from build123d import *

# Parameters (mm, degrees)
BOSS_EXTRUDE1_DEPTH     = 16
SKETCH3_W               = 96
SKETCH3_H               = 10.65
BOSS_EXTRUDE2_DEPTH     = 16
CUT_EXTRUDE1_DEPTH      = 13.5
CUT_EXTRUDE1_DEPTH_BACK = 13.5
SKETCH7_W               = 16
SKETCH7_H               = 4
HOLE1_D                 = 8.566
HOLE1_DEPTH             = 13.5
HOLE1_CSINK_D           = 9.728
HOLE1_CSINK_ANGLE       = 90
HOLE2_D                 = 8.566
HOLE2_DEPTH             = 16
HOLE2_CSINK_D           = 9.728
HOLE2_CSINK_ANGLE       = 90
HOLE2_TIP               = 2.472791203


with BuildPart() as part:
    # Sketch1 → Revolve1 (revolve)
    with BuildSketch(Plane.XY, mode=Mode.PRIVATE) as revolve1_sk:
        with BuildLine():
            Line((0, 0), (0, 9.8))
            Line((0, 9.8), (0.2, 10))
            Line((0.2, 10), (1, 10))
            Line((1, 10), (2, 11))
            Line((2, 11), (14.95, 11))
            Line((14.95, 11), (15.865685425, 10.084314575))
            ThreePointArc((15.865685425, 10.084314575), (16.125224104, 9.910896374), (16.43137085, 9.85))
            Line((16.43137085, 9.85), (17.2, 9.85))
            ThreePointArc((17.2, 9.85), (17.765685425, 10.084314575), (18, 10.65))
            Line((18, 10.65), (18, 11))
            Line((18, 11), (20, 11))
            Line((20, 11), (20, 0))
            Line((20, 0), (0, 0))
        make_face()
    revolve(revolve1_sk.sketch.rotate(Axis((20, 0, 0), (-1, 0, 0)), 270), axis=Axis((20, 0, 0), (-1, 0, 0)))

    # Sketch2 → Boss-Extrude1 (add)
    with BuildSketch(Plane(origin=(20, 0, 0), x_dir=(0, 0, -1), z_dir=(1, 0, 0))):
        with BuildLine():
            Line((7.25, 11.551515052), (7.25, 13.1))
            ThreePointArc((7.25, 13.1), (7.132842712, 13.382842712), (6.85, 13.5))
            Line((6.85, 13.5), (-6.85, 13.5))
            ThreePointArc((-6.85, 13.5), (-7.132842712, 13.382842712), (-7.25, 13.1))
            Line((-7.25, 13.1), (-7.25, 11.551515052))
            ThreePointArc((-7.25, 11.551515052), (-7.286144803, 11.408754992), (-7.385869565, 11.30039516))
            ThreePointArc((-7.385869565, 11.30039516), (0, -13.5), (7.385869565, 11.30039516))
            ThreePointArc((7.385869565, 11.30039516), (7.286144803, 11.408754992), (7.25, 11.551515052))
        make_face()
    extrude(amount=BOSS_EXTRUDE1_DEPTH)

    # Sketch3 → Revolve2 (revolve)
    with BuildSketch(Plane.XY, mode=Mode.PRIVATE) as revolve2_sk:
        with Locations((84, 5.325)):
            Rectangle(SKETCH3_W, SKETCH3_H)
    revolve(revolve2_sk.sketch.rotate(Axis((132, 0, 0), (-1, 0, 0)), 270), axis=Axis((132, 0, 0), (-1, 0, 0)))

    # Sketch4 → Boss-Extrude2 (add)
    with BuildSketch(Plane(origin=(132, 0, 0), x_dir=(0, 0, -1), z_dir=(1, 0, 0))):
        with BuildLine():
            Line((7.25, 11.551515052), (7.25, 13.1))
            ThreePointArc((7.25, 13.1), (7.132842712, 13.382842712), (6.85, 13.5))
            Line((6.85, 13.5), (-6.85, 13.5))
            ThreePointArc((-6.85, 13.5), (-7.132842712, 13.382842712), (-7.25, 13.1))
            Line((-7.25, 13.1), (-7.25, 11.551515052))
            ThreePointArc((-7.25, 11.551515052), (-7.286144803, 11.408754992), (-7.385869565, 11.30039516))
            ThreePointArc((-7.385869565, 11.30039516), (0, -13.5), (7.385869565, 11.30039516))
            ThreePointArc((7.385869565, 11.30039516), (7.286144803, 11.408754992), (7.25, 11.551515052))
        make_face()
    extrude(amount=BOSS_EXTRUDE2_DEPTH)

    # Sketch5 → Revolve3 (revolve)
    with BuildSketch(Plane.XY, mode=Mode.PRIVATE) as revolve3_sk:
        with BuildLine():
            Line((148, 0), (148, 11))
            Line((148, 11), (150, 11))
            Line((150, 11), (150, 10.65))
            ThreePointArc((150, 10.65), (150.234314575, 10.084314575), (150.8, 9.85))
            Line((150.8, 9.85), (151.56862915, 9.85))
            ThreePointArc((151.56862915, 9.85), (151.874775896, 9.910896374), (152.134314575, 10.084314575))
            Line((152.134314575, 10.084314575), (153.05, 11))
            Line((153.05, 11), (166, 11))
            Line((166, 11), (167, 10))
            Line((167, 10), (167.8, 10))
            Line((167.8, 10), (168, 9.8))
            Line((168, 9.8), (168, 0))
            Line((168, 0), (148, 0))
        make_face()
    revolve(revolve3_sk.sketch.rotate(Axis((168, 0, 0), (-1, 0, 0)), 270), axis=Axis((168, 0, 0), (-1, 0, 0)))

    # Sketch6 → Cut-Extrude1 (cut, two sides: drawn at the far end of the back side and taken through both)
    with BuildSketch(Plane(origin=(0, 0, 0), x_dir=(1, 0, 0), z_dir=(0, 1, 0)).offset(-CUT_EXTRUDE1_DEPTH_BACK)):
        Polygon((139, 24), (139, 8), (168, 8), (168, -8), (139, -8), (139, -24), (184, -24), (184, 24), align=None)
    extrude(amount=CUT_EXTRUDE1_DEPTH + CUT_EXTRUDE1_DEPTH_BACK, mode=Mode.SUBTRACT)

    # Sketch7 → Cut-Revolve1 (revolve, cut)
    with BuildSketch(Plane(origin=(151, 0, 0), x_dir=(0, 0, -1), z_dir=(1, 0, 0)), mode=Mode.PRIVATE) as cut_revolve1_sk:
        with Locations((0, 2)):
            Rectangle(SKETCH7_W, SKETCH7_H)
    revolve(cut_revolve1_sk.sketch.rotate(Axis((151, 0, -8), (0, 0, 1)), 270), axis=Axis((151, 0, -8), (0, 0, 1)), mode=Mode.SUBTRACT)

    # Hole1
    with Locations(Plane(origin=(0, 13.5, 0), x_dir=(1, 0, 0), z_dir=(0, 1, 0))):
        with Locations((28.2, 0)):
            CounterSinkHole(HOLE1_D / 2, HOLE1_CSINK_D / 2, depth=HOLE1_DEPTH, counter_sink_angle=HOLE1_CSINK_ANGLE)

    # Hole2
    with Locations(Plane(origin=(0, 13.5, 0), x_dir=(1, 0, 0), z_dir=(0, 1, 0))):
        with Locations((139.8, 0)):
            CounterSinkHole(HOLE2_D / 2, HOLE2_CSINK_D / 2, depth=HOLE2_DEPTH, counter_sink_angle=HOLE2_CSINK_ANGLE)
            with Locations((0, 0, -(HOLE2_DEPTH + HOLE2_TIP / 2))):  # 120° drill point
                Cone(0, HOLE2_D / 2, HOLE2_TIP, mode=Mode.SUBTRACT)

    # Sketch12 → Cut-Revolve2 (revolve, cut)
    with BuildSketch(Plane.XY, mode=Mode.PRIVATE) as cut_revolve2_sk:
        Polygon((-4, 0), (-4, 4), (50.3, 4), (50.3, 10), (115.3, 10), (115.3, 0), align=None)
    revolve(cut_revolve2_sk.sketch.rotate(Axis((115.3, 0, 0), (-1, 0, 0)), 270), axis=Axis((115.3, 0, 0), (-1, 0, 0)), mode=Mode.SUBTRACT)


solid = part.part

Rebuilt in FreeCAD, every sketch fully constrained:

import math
import FreeCAD as App
import Part
import Sketcher
Q = App.Units.Quantity

doc = App.newDocument("Part")
body = doc.addObject("PartDesign::Body", "Body")

sketch1 = body.newObject("Sketcher::SketchObject", "Sketch")
sketch1.AttachmentSupport = (doc.getObject("XY_Plane"), [""])
sketch1.MapMode = "FlatFace"
sketch1.addGeometry([
    Part.LineSegment(App.Vector(0, 9.8, 0), App.Vector(0, 0, 0)),
    Part.LineSegment(App.Vector(0, 0, 0), App.Vector(20, 0, 0)),
    Part.LineSegment(App.Vector(20, 0, 0), App.Vector(20, 11, 0)),
    Part.LineSegment(App.Vector(20, 11, 0), App.Vector(18, 11, 0)),
    Part.LineSegment(App.Vector(18, 11, 0), App.Vector(18, 10.65, 0)),
    Part.ArcOfCircle(Part.Circle(App.Vector(17.2, 10.65, 0), App.Vector(0, 0, 1), 0.8), math.radians(-90), math.radians(0)),
    Part.LineSegment(App.Vector(17.2, 9.85, 0), App.Vector(16.43, 9.85, 0)),
    Part.ArcOfCircle(Part.Circle(App.Vector(16.43, 10.65, 0), App.Vector(0, 0, 1), 0.8), math.radians(-135), math.radians(-90)),
    Part.LineSegment(App.Vector(15.87, 10.08, 0), App.Vector(14.95, 11, 0)),
    Part.LineSegment(App.Vector(14.95, 11, 0), App.Vector(2, 11, 0)),
    Part.LineSegment(App.Vector(2, 11, 0), App.Vector(1, 10, 0)),
    Part.LineSegment(App.Vector(1, 10, 0), App.Vector(0.2, 10, 0)),
    Part.LineSegment(App.Vector(0.2, 10, 0), App.Vector(0, 9.8, 0)),
], False)
sketch1.addConstraint([
    Sketcher.Constraint("Coincident", 0, 2, 1, 1),
    Sketcher.Constraint("Coincident", 1, 2, 2, 1),
    Sketcher.Constraint("Coincident", 2, 2, 3, 1),
    Sketcher.Constraint("Coincident", 3, 2, 4, 1),
    Sketcher.Constraint("Tangent", 4, 2, 5, 2),
    Sketcher.Constraint("Tangent", 5, 1, 6, 1),
    Sketcher.Constraint("Tangent", 6, 2, 7, 2),
    Sketcher.Constraint("Tangent", 7, 1, 8, 1),
    Sketcher.Constraint("Coincident", 8, 2, 9, 1),
    Sketcher.Constraint("Coincident", 9, 2, 10, 1),
    Sketcher.Constraint("Coincident", 10, 2, 11, 1),
    Sketcher.Constraint("Coincident", 11, 2, 12, 1),
    Sketcher.Constraint("Coincident", 12, 2, 0, 1),
    Sketcher.Constraint("Vertical", 0),
    Sketcher.Constraint("Horizontal", 1),
    Sketcher.Constraint("Vertical", 2),
    Sketcher.Constraint("Horizontal", 3),
    Sketcher.Constraint("Vertical", 4),
    Sketcher.Constraint("Horizontal", 6),
    Sketcher.Constraint("Horizontal", 9),
    Sketcher.Constraint("Horizontal", 11),
    Sketcher.Constraint("Coincident", 0, 2, -1, 1),
    Sketcher.Constraint("Equal", 5, 7),
    Sketcher.Constraint("Perpendicular", 8, 10),
    Sketcher.Constraint("Parallel", 10, 12),
    Sketcher.Constraint("Horizontal", 3, 2, 8, 2),
    Sketcher.Constraint("Radius", 5, Q("0.8 mm")),
    Sketcher.Constraint("DistanceX", 1, 1, 1, 2, Q("20 mm")),
    Sketcher.Constraint("DistanceX", 3, 2, 3, 1, Q("2 mm")),
    Sketcher.Constraint("DistanceY", 2, 1, 2, 2, Q("11 mm")),
    Sketcher.Constraint("Angle", 8, Q("135 deg")),
    Sketcher.Constraint("DistanceX", 11, 2, 11, 1, Q("0.8 mm")),
    Sketcher.Constraint("DistanceY", 0, 2, 0, 1, Q("9.8 mm")),
    Sketcher.Constraint("DistanceX", -1, 1, 10, 2, Q("1 mm")),
    Sketcher.Constraint("DistanceX", 9, 2, 9, 1, Q("12.95 mm")),
    Sketcher.Constraint("DistanceY", 4, 2, 4, 1, Q("0.35 mm")),
])
revolution = body.newObject("PartDesign::Revolution", "Revolution")
revolution.Profile = sketch1
revolution.ReferenceAxis = (sketch1, ["H_Axis"])
revolution.Angle = 360

sketch2 = body.newObject("Sketcher::SketchObject", "Sketch001")
sketch2.AttachmentSupport = (doc.getObject("YZ_Plane"), [""])
sketch2.MapMode = "FlatFace"
sketch2.AttachmentOffset = App.Placement(App.Vector(0, 0, 20), App.Rotation())
sketch2.addGeometry([
    Part.LineSegment(App.Vector(11.55, -7.25, 0), App.Vector(13.1, -7.25, 0)),
    Part.ArcOfCircle(Part.Circle(App.Vector(13.1, -6.85, 0), App.Vector(0, 0, 1), 0.4), math.radians(-90), math.radians(0)),
    Part.LineSegment(App.Vector(13.5, -6.85, 0), App.Vector(13.5, 6.85, 0)),
    Part.ArcOfCircle(Part.Circle(App.Vector(13.1, 6.85, 0), App.Vector(0, 0, 1), 0.4), math.radians(0), math.radians(90)),
    Part.LineSegment(App.Vector(13.1, 7.25, 0), App.Vector(11.55, 7.25, 0)),
    Part.ArcOfCircle(Part.Circle(App.Vector(11.55, 7.55, 0), App.Vector(0, 0, 1), 0.3), math.radians(-147), math.radians(-90)),
    Part.ArcOfCircle(Part.Circle(App.Vector(0, 0, 0), App.Vector(0, 0, 1), 13.5), math.radians(33), math.radians(327)),
    Part.ArcOfCircle(Part.Circle(App.Vector(11.55, -7.55, 0), App.Vector(0, 0, 1), 0.3), math.radians(90), math.radians(147)),
], False)
sketch2.addConstraint([
    Sketcher.Constraint("Tangent", 0, 2, 1, 1),
    Sketcher.Constraint("Tangent", 1, 2, 2, 1),
    Sketcher.Constraint("Tangent", 2, 2, 3, 1),
    Sketcher.Constraint("Tangent", 3, 2, 4, 1),
    Sketcher.Constraint("Tangent", 4, 2, 5, 2),
    Sketcher.Constraint("Tangent", 5, 1, 6, 1),
    Sketcher.Constraint("Tangent", 6, 2, 7, 2),
    Sketcher.Constraint("Tangent", 7, 1, 0, 1),
    Sketcher.Constraint("Horizontal", 0),
    Sketcher.Constraint("Vertical", 2),
    Sketcher.Constraint("Horizontal", 4),
    Sketcher.Constraint("Coincident", 6, 3, -1, 1),
    Sketcher.Constraint("Equal", 1, 3),
    Sketcher.Constraint("Equal", 5, 7),
    Sketcher.Constraint("Vertical", 5, 3, 7, 3),
    Sketcher.Constraint("Radius", 1, Q("0.4 mm")),
    Sketcher.Constraint("Radius", 5, Q("0.3 mm")),
    Sketcher.Constraint("Radius", 6, Q("13.5 mm")),
    Sketcher.Constraint("DistanceY", 2, 1, 2, 2, Q("13.7 mm")),
    Sketcher.Constraint("DistanceX", -1, 1, 1, 3, Q("13.1 mm")),
])
pad1 = body.newObject("PartDesign::Pad", "Pad")
pad1.Profile = sketch2
pad1.Length = 16

sketch3 = body.newObject("Sketcher::SketchObject", "Sketch002")
sketch3.AttachmentSupport = (doc.getObject("XY_Plane"), [""])
sketch3.MapMode = "FlatFace"
sketch3.addGeometry([
    Part.LineSegment(App.Vector(36, 11, 0), App.Vector(36, 0, 0)),
    Part.LineSegment(App.Vector(36, 0, 0), App.Vector(132, 0, 0)),
    Part.LineSegment(App.Vector(132, 0, 0), App.Vector(132, 11, 0)),
    Part.LineSegment(App.Vector(132, 11, 0), App.Vector(36, 11, 0)),
], False)
sketch3.addConstraint([
    Sketcher.Constraint("Coincident", 0, 2, 1, 1),
    Sketcher.Constraint("Coincident", 1, 2, 2, 1),
    Sketcher.Constraint("Coincident", 2, 2, 3, 1),
    Sketcher.Constraint("Coincident", 3, 2, 0, 1),
    Sketcher.Constraint("Vertical", 0),
    Sketcher.Constraint("Horizontal", 1),
    Sketcher.Constraint("Vertical", 2),
    Sketcher.Constraint("Horizontal", 3),
    Sketcher.Constraint("PointOnObject", 0, 2, -1),
    Sketcher.Constraint("DistanceX", 1, 1, 1, 2, Q("96 mm")),
    Sketcher.Constraint("DistanceX", -1, 1, 0, 2, Q("36 mm")),
    Sketcher.Constraint("DistanceY", 0, 2, 0, 1, Q("10.65 mm")),
])
revolution2 = body.newObject("PartDesign::Revolution", "Revolution001")
revolution2.Profile = sketch3
revolution2.ReferenceAxis = (sketch3, ["H_Axis"])
revolution2.Angle = 360

sketch4 = body.newObject("Sketcher::SketchObject", "Sketch003")
sketch4.AttachmentSupport = (doc.getObject("YZ_Plane"), [""])
sketch4.MapMode = "FlatFace"
sketch4.AttachmentOffset = App.Placement(App.Vector(0, 0, 132), App.Rotation())
sketch4.addGeometry([
    Part.LineSegment(App.Vector(11.55, -7.25, 0), App.Vector(13.1, -7.25, 0)),
    Part.ArcOfCircle(Part.Circle(App.Vector(13.1, -6.85, 0), App.Vector(0, 0, 1), 0.4), math.radians(-90), math.radians(0)),
    Part.LineSegment(App.Vector(13.5, -6.85, 0), App.Vector(13.5, 6.85, 0)),
    Part.ArcOfCircle(Part.Circle(App.Vector(13.1, 6.85, 0), App.Vector(0, 0, 1), 0.4), math.radians(0), math.radians(90)),
    Part.LineSegment(App.Vector(13.1, 7.25, 0), App.Vector(11.55, 7.25, 0)),
    Part.ArcOfCircle(Part.Circle(App.Vector(11.55, 7.55, 0), App.Vector(0, 0, 1), 0.3), math.radians(-147), math.radians(-90)),
    Part.ArcOfCircle(Part.Circle(App.Vector(0, 0, 0), App.Vector(0, 0, 1), 13.5), math.radians(33), math.radians(327)),
    Part.ArcOfCircle(Part.Circle(App.Vector(11.55, -7.55, 0), App.Vector(0, 0, 1), 0.3), math.radians(90), math.radians(147)),
], False)
sketch4.addConstraint([
    Sketcher.Constraint("Tangent", 0, 2, 1, 1),
    Sketcher.Constraint("Tangent", 1, 2, 2, 1),
    Sketcher.Constraint("Tangent", 2, 2, 3, 1),
    Sketcher.Constraint("Tangent", 3, 2, 4, 1),
    Sketcher.Constraint("Tangent", 4, 2, 5, 2),
    Sketcher.Constraint("Tangent", 5, 1, 6, 1),
    Sketcher.Constraint("Tangent", 6, 2, 7, 2),
    Sketcher.Constraint("Tangent", 7, 1, 0, 1),
    Sketcher.Constraint("Horizontal", 0),
    Sketcher.Constraint("Vertical", 2),
    Sketcher.Constraint("Horizontal", 4),
    Sketcher.Constraint("Coincident", 6, 3, -1, 1),
    Sketcher.Constraint("Equal", 1, 3),
    Sketcher.Constraint("Equal", 5, 7),
    Sketcher.Constraint("Vertical", 5, 3, 7, 3),
    Sketcher.Constraint("Radius", 1, Q("0.4 mm")),
    Sketcher.Constraint("Radius", 5, Q("0.3 mm")),
    Sketcher.Constraint("Radius", 6, Q("13.5 mm")),
    Sketcher.Constraint("DistanceY", 2, 1, 2, 2, Q("13.7 mm")),
    Sketcher.Constraint("DistanceX", -1, 1, 1, 3, Q("13.1 mm")),
])
pad2 = body.newObject("PartDesign::Pad", "Pad001")
pad2.Profile = sketch4
pad2.Length = 16

sketch5 = body.newObject("Sketcher::SketchObject", "Sketch004")
sketch5.AttachmentSupport = (doc.getObject("XY_Plane"), [""])
sketch5.MapMode = "FlatFace"
sketch5.addGeometry([
    Part.LineSegment(App.Vector(148, 11, 0), App.Vector(148, 0, 0)),
    Part.LineSegment(App.Vector(148, 0, 0), App.Vector(168, 0, 0)),
    Part.LineSegment(App.Vector(168, 0, 0), App.Vector(168, 9.8, 0)),
    Part.LineSegment(App.Vector(168, 9.8, 0), App.Vector(167.8, 10, 0)),
    Part.LineSegment(App.Vector(167.8, 10, 0), App.Vector(167, 10, 0)),
    Part.LineSegment(App.Vector(167, 10, 0), App.Vector(166, 11, 0)),
    Part.LineSegment(App.Vector(166, 11, 0), App.Vector(153.05, 11, 0)),
    Part.LineSegment(App.Vector(153.05, 11, 0), App.Vector(152.13, 10.08, 0)),
    Part.ArcOfCircle(Part.Circle(App.Vector(151.57, 10.65, 0), App.Vector(0, 0, 1), 0.8), math.radians(-90), math.radians(-45)),
    Part.LineSegment(App.Vector(151.57, 9.85, 0), App.Vector(150.8, 9.85, 0)),
    Part.ArcOfCircle(Part.Circle(App.Vector(150.8, 10.65, 0), App.Vector(0, 0, 1), 0.8), math.radians(180), math.radians(270)),
    Part.LineSegment(App.Vector(150, 10.65, 0), App.Vector(150, 11, 0)),
    Part.LineSegment(App.Vector(150, 11, 0), App.Vector(148, 11, 0)),
], False)
sketch5.addConstraint([
    Sketcher.Constraint("Coincident", 0, 2, 1, 1),
    Sketcher.Constraint("Coincident", 1, 2, 2, 1),
    Sketcher.Constraint("Coincident", 2, 2, 3, 1),
    Sketcher.Constraint("Coincident", 3, 2, 4, 1),
    Sketcher.Constraint("Coincident", 4, 2, 5, 1),
    Sketcher.Constraint("Coincident", 5, 2, 6, 1),
    Sketcher.Constraint("Coincident", 6, 2, 7, 1),
    Sketcher.Constraint("Tangent", 7, 2, 8, 2),
    Sketcher.Constraint("Tangent", 8, 1, 9, 1),
    Sketcher.Constraint("Tangent", 9, 2, 10, 2),
    Sketcher.Constraint("Tangent", 10, 1, 11, 1),
    Sketcher.Constraint("Coincident", 11, 2, 12, 1),
    Sketcher.Constraint("Coincident", 12, 2, 0, 1),
    Sketcher.Constraint("Vertical", 0),
    Sketcher.Constraint("Horizontal", 1),
    Sketcher.Constraint("Vertical", 2),
    Sketcher.Constraint("Horizontal", 4),
    Sketcher.Constraint("Horizontal", 6),
    Sketcher.Constraint("Horizontal", 9),
    Sketcher.Constraint("Vertical", 11),
    Sketcher.Constraint("Horizontal", 12),
    Sketcher.Constraint("Equal", 8, 10),
    Sketcher.Constraint("PointOnObject", 0, 2, -1),
    Sketcher.Constraint("Parallel", 3, 5),
    Sketcher.Constraint("Perpendicular", 5, 7),
    Sketcher.Constraint("Horizontal", 6, 2, 11, 2),
    Sketcher.Constraint("Radius", 8, Q("0.8 mm")),
    Sketcher.Constraint("DistanceX", 1, 1, 1, 2, Q("20 mm")),
    Sketcher.Constraint("DistanceX", 12, 2, 12, 1, Q("2 mm")),
    Sketcher.Constraint("DistanceY", 0, 2, 0, 1, Q("11 mm")),
    Sketcher.Constraint("Angle", 3, Q("135 deg")),
    Sketcher.Constraint("DistanceX", 4, 2, 4, 1, Q("0.8 mm")),
    Sketcher.Constraint("DistanceY", 2, 1, 2, 2, Q("9.8 mm")),
    Sketcher.Constraint("DistanceX", -1, 1, 0, 2, Q("148 mm")),
    Sketcher.Constraint("DistanceY", -1, 1, 3, 2, Q("10 mm")),
    Sketcher.Constraint("DistanceX", 6, 2, 6, 1, Q("12.95 mm")),
    Sketcher.Constraint("DistanceY", 11, 1, 11, 2, Q("0.35 mm")),
])
revolution3 = body.newObject("PartDesign::Revolution", "Revolution002")
revolution3.Profile = sketch5
revolution3.ReferenceAxis = (sketch5, ["H_Axis"])
revolution3.Angle = 360

sketch6 = body.newObject("Sketcher::SketchObject", "Sketch005")
sketch6.AttachmentSupport = (doc.getObject("XZ_Plane"), [""])
sketch6.MapMode = "FlatFace"
sketch6.addGeometry([
    Part.LineSegment(App.Vector(139, -24, 0), App.Vector(139, -8, 0)),
    Part.LineSegment(App.Vector(139, -8, 0), App.Vector(168, -8, 0)),
    Part.LineSegment(App.Vector(168, -8, 0), App.Vector(168, 8, 0)),
    Part.LineSegment(App.Vector(168, 8, 0), App.Vector(139, 8, 0)),
    Part.LineSegment(App.Vector(139, 8, 0), App.Vector(139, 24, 0)),
    Part.LineSegment(App.Vector(139, 24, 0), App.Vector(184, 24, 0)),
    Part.LineSegment(App.Vector(184, 24, 0), App.Vector(184, -24, 0)),
    Part.LineSegment(App.Vector(184, -24, 0), App.Vector(139, -24, 0)),
], False)
sketch6.addConstraint([
    Sketcher.Constraint("Coincident", 0, 2, 1, 1),
    Sketcher.Constraint("Coincident", 1, 2, 2, 1),
    Sketcher.Constraint("Coincident", 2, 2, 3, 1),
    Sketcher.Constraint("Coincident", 3, 2, 4, 1),
    Sketcher.Constraint("Coincident", 4, 2, 5, 1),
    Sketcher.Constraint("Coincident", 5, 2, 6, 1),
    Sketcher.Constraint("Coincident", 6, 2, 7, 1),
    Sketcher.Constraint("Coincident", 7, 2, 0, 1),
    Sketcher.Constraint("Vertical", 0),
    Sketcher.Constraint("Horizontal", 1),
    Sketcher.Constraint("Vertical", 2),
    Sketcher.Constraint("Horizontal", 3),
    Sketcher.Constraint("Vertical", 4),
    Sketcher.Constraint("Horizontal", 5),
    Sketcher.Constraint("Vertical", 6),
    Sketcher.Constraint("Horizontal", 7),
    Sketcher.Constraint("Symmetric", 0, 2, 3, 2, -1),
    Sketcher.Constraint("Equal", 0, 2),
    Sketcher.Constraint("Equal", 2, 4),
    Sketcher.Constraint("DistanceX", 1, 1, 1, 2, Q("29 mm")),
    Sketcher.Constraint("DistanceX", 5, 1, 5, 2, Q("45 mm")),
    Sketcher.Constraint("DistanceY", 0, 1, 0, 2, Q("16 mm")),
    Sketcher.Constraint("DistanceX", -1, 1, 0, 2, Q("139 mm")),
])
pocket1 = body.newObject("PartDesign::Pocket", "Pocket")
pocket1.Profile = sketch6
pocket1.Type = "ThroughAll"
pocket1.Midplane = True

sketch7 = body.newObject("Sketcher::SketchObject", "Sketch006")
sketch7.AttachmentSupport = (doc.getObject("YZ_Plane"), [""])
sketch7.MapMode = "FlatFace"
sketch7.AttachmentOffset = App.Placement(App.Vector(0, 0, 151), App.Rotation())
sketch7.addGeometry([
    Part.LineSegment(App.Vector(4, 8, 0), App.Vector(0, 8, 0)),
    Part.LineSegment(App.Vector(0, 8, 0), App.Vector(0, -8, 0)),
    Part.LineSegment(App.Vector(0, -8, 0), App.Vector(4, -8, 0)),
    Part.LineSegment(App.Vector(4, -8, 0), App.Vector(4, 8, 0)),
], False)
sketch7.addConstraint([
    Sketcher.Constraint("Coincident", 0, 2, 1, 1),
    Sketcher.Constraint("Coincident", 1, 2, 2, 1),
    Sketcher.Constraint("Coincident", 2, 2, 3, 1),
    Sketcher.Constraint("Coincident", 3, 2, 0, 1),
    Sketcher.Constraint("Horizontal", 0),
    Sketcher.Constraint("Vertical", 1),
    Sketcher.Constraint("Horizontal", 2),
    Sketcher.Constraint("Vertical", 3),
    Sketcher.Constraint("Symmetric", 0, 2, 1, 2, -1, 1),
    Sketcher.Constraint("DistanceX", 0, 2, 0, 1, Q("4 mm")),
    Sketcher.Constraint("DistanceY", 1, 2, 1, 1, Q("16 mm")),
])
groove = body.newObject("PartDesign::Groove", "Groove")
groove.Profile = sketch7
groove.ReferenceAxis = (sketch7, ["V_Axis"])
groove.Angle = 360

sketch8 = body.newObject("Sketcher::SketchObject", "Sketch007")
sketch8.AttachmentSupport = (doc.getObject("XZ_Plane"), [""])
sketch8.MapMode = "FlatFace"
sketch8.AttachmentOffset = App.Placement(App.Vector(0, 0, -13.5), App.Rotation())
sketch8.addGeometry(Part.Circle(App.Vector(28.2, 0, 0), App.Vector(0, 0, 1), 4.3), False)
sketch8.addConstraint([
    Sketcher.Constraint("PointOnObject", 0, 3, -1),
    Sketcher.Constraint("Diameter", 0, Q("8.566 mm")),
    Sketcher.Constraint("DistanceX", -1, 1, 0, 3, Q("28.2 mm")),
])
doc.recompute()
hole = body.newObject("PartDesign::Hole", "Hole")
hole.Profile = sketch8
hole.ThreadType = "None"
hole.Diameter = 8.566
hole.DepthType = "Dimension"
hole.Depth = 13.5
hole.DrillPoint = "Flat"
hole.HoleCutType = "Countersink"
hole.HoleCutDiameter = 9.728
hole.HoleCutCountersinkAngle = 90
hole.Reversed = True

sketch9 = body.newObject("Sketcher::SketchObject", "Sketch008")
sketch9.AttachmentSupport = (doc.getObject("XZ_Plane"), [""])
sketch9.MapMode = "FlatFace"
sketch9.AttachmentOffset = App.Placement(App.Vector(0, 0, -13.5), App.Rotation())
sketch9.addGeometry(Part.Circle(App.Vector(139.8, 0, 0), App.Vector(0, 0, 1), 4.3), False)
sketch9.addConstraint([
    Sketcher.Constraint("PointOnObject", 0, 3, -1),
    Sketcher.Constraint("Diameter", 0, Q("8.566 mm")),
    Sketcher.Constraint("DistanceX", -1, 1, 0, 3, Q("139.8 mm")),
])
doc.recompute()
hole2 = body.newObject("PartDesign::Hole", "Hole001")
hole2.Profile = sketch9
hole2.ThreadType = "None"
hole2.Diameter = 8.566
hole2.DepthType = "Dimension"
hole2.Depth = 16
hole2.DrillPoint = "Angled"
hole2.DrillPointAngle = 120
hole2.HoleCutType = "Countersink"
hole2.HoleCutDiameter = 9.728
hole2.HoleCutCountersinkAngle = 90
hole2.Reversed = True

sketch10 = body.newObject("Sketcher::SketchObject", "Sketch009")
sketch10.AttachmentSupport = (doc.getObject("XY_Plane"), [""])
sketch10.MapMode = "FlatFace"
sketch10.addGeometry([
    Part.LineSegment(App.Vector(-4, 4, 0), App.Vector(-4, 0, 0)),
    Part.LineSegment(App.Vector(-4, 0, 0), App.Vector(115.3, 0, 0)),
    Part.LineSegment(App.Vector(115.3, 0, 0), App.Vector(115.3, 10, 0)),
    Part.LineSegment(App.Vector(115.3, 10, 0), App.Vector(50.3, 10, 0)),
    Part.LineSegment(App.Vector(50.3, 10, 0), App.Vector(50.3, 4, 0)),
    Part.LineSegment(App.Vector(50.3, 4, 0), App.Vector(-4, 4, 0)),
], False)
sketch10.addConstraint([
    Sketcher.Constraint("Coincident", 0, 2, 1, 1),
    Sketcher.Constraint("Coincident", 1, 2, 2, 1),
    Sketcher.Constraint("Coincident", 2, 2, 3, 1),
    Sketcher.Constraint("Coincident", 3, 2, 4, 1),
    Sketcher.Constraint("Coincident", 4, 2, 5, 1),
    Sketcher.Constraint("Coincident", 5, 2, 0, 1),
    Sketcher.Constraint("Vertical", 0),
    Sketcher.Constraint("Horizontal", 1),
    Sketcher.Constraint("Vertical", 2),
    Sketcher.Constraint("Horizontal", 3),
    Sketcher.Constraint("Vertical", 4),
    Sketcher.Constraint("Horizontal", 5),
    Sketcher.Constraint("PointOnObject", 0, 2, -1),
    Sketcher.Constraint("DistanceX", 3, 2, 3, 1, Q("65 mm")),
    Sketcher.Constraint("DistanceY", 0, 2, 0, 1, Q("4 mm")),
    Sketcher.Constraint("DistanceY", 2, 1, 2, 2, Q("10 mm")),
    Sketcher.Constraint("DistanceX", 1, 1, 1, 2, Q("119.3 mm")),
    Sketcher.Constraint("DistanceX", 0, 2, -1, 1, Q("4 mm")),
])
groove2 = body.newObject("PartDesign::Groove", "Groove001")
groove2.Profile = sketch10
groove2.ReferenceAxis = (sketch10, ["H_Axis"])
groove2.Angle = 360

doc.recompute()
